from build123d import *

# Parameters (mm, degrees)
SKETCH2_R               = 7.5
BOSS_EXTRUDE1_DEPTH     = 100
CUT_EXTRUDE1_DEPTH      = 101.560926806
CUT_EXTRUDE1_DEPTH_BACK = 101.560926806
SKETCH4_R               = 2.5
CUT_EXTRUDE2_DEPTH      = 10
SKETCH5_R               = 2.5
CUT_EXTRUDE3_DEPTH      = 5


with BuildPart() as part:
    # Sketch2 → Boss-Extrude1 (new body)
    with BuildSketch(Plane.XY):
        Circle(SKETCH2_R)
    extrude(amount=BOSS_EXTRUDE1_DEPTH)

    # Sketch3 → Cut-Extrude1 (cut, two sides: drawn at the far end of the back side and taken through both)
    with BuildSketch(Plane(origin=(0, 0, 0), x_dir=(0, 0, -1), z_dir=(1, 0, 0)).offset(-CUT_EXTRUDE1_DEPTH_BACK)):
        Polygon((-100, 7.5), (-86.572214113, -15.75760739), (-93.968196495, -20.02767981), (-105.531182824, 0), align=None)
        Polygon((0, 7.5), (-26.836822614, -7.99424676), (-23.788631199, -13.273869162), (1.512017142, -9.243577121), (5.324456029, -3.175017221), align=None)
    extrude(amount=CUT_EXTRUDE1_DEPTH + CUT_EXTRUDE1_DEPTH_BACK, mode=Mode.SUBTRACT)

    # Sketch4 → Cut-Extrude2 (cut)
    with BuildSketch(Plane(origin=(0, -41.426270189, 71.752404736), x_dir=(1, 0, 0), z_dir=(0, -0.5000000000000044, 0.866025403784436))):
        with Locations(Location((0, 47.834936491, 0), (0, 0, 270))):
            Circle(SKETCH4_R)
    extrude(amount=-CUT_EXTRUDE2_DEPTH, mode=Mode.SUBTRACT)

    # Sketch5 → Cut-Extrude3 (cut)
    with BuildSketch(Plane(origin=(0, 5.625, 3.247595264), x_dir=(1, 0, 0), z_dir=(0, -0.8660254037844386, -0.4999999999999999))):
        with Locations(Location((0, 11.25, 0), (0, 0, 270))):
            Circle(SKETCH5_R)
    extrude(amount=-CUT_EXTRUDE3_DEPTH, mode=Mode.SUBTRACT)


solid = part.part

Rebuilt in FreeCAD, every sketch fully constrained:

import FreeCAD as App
import Part
import Sketcher
from FreeCAD import Vector
Q = App.Units.Quantity


def add_polygon(sketch, points):
    """Adds a closed chain of lines whose ends are joined by coincident constraints."""
    first, n = sketch.GeometryCount, len(points)
    for a, b in zip(points, points[1:] + points[:1]):
        sketch.addGeometry(Part.LineSegment(App.Vector(*a, 0), App.Vector(*b, 0)), False)
    for i in range(n):
        sketch.addConstraint(Sketcher.Constraint("Coincident", first + i, 2, first + (i + 1) % n, 1))

doc = App.newDocument("Part")
body = doc.addObject("PartDesign::Body", "Body")

# Sketch on XY plane
sketch1 = body.newObject("Sketcher::SketchObject", "Sketch")
sketch1.AttachmentSupport = (doc.getObject("XY_Plane"), [""])
sketch1.MapMode = "FlatFace"
sketch1.addGeometry(Part.Circle(Vector(0, 0, 0), Vector(0, 0, 1), 8), False)
sketch1.addConstraint([
    Sketcher.Constraint("Coincident", 0, 3, -1, 1),
    Sketcher.Constraint("Diameter", 0, Q("15 mm")),
])
pad1 = body.newObject("PartDesign::Pad", "Pad")
pad1.Profile = sketch1
pad1.Length = 100

# Sketch on YZ plane
sketch2 = body.newObject("Sketcher::SketchObject", "Sketch001")
sketch2.AttachmentSupport = (doc.getObject("YZ_Plane"), [""])
sketch2.MapMode = "FlatFace"
add_polygon(sketch2, [(-16, 87), (8, 100), (0, 106), (-20, 94)])  # lines 0-3
add_polygon(sketch2, [(8, 0), (-8, 27), (-13, 24), (-9, -2), (-3, -5)])  # lines 4-8
sketch2.addConstraint([
    Sketcher.Constraint("PointOnObject", 1, 2, -2),
    Sketcher.Constraint("PointOnObject", 8, 2, -1),
    Sketcher.Constraint("Parallel", 0, 2),
    Sketcher.Constraint("Perpendicular", 2, 3),
    Sketcher.Constraint("Parallel", 3, 4),
    Sketcher.Constraint("Perpendicular", 4, 5),
    Sketcher.Constraint("Vertical", 0, 2, 8, 2),
    Sketcher.Constraint("Angle", 0, Q("30 deg")),
    Sketcher.Constraint("DistanceY", -1, 1, 0, 2, Q("100 mm")),
    Sketcher.Constraint("DistanceX", -1, 1, 0, 2, Q("7.5 mm")),
    Sketcher.Constraint("Distance", 8, Q("11.929201 mm")),
    Sketcher.Constraint("Distance", 0, Q("26.855572 mm")),
    Sketcher.Constraint("Distance", 1, Q("9.319012 mm")),
    Sketcher.Constraint("DistanceX", 5, 2, -1, 1, Q("13.273869 mm")),
    Sketcher.Constraint("DistanceY", -1, 1, 5, 2, Q("23.788631 mm")),
    Sketcher.Constraint("DistanceY", 6, 2, 5, 2, Q("25.300648 mm")),
    Sketcher.Constraint("DistanceX", 6, 2, 4, 2, Q("1.24933 mm")),
    Sketcher.Constraint("DistanceX", 6, 2, 7, 2, Q("6.06856 mm")),
])
pocket1 = body.newObject("PartDesign::Pocket", "Pocket")
pocket1.Profile = sketch2
pocket1.Type = "ThroughAll"
pocket1.Midplane = True

# Sketch on an angled plane
sketch3 = body.newObject("Sketcher::SketchObject", "Sketch002")
sketch3.Placement = App.Placement(Vector(0, -41.42627, 71.752405), App.Rotation(Vector(1, 0, 0), Vector(0, 0.866025404, 0.5), Vector(0, -0.5, 0.866025404), "ZXY"))
sketch3.addGeometry(Part.Circle(Vector(0, 47.8, 0), Vector(0, 0, 1), 2.5), False)
sketch3.addConstraint([
    Sketcher.Constraint("PointOnObject", 0, 3, -2),
    Sketcher.Constraint("Diameter", 0, Q("5 mm")),
    Sketcher.Constraint("DistanceY", -1, 1, 0, 3, Q("47.834937 mm")),
])
pocket2 = body.newObject("PartDesign::Pocket", "Pocket001")
pocket2.Profile = sketch3
pocket2.Length = 10

# Sketch on an angled plane
sketch4 = body.newObject("Sketcher::SketchObject", "Sketch003")
sketch4.Placement = App.Placement(Vector(0, 5.625, 3.247595), App.Rotation(Vector(1, 0, 0), Vector(0, -0.5, 0.866025404), Vector(0, -0.866025404, -0.5), "ZXY"))
sketch4.addGeometry(Part.Circle(Vector(0, 11.3, 0), Vector(0, 0, 1), 2.5), False)
sketch4.addConstraint([
    Sketcher.Constraint("PointOnObject", 0, 3, -2),
    Sketcher.Constraint("Diameter", 0, Q("5 mm")),
    Sketcher.Constraint("DistanceY", -1, 1, 0, 3, Q("11.25 mm")),
])
pocket3 = body.newObject("PartDesign::Pocket", "Pocket002")
pocket3.Profile = sketch4
pocket3.Length = 5

doc.recompute()
